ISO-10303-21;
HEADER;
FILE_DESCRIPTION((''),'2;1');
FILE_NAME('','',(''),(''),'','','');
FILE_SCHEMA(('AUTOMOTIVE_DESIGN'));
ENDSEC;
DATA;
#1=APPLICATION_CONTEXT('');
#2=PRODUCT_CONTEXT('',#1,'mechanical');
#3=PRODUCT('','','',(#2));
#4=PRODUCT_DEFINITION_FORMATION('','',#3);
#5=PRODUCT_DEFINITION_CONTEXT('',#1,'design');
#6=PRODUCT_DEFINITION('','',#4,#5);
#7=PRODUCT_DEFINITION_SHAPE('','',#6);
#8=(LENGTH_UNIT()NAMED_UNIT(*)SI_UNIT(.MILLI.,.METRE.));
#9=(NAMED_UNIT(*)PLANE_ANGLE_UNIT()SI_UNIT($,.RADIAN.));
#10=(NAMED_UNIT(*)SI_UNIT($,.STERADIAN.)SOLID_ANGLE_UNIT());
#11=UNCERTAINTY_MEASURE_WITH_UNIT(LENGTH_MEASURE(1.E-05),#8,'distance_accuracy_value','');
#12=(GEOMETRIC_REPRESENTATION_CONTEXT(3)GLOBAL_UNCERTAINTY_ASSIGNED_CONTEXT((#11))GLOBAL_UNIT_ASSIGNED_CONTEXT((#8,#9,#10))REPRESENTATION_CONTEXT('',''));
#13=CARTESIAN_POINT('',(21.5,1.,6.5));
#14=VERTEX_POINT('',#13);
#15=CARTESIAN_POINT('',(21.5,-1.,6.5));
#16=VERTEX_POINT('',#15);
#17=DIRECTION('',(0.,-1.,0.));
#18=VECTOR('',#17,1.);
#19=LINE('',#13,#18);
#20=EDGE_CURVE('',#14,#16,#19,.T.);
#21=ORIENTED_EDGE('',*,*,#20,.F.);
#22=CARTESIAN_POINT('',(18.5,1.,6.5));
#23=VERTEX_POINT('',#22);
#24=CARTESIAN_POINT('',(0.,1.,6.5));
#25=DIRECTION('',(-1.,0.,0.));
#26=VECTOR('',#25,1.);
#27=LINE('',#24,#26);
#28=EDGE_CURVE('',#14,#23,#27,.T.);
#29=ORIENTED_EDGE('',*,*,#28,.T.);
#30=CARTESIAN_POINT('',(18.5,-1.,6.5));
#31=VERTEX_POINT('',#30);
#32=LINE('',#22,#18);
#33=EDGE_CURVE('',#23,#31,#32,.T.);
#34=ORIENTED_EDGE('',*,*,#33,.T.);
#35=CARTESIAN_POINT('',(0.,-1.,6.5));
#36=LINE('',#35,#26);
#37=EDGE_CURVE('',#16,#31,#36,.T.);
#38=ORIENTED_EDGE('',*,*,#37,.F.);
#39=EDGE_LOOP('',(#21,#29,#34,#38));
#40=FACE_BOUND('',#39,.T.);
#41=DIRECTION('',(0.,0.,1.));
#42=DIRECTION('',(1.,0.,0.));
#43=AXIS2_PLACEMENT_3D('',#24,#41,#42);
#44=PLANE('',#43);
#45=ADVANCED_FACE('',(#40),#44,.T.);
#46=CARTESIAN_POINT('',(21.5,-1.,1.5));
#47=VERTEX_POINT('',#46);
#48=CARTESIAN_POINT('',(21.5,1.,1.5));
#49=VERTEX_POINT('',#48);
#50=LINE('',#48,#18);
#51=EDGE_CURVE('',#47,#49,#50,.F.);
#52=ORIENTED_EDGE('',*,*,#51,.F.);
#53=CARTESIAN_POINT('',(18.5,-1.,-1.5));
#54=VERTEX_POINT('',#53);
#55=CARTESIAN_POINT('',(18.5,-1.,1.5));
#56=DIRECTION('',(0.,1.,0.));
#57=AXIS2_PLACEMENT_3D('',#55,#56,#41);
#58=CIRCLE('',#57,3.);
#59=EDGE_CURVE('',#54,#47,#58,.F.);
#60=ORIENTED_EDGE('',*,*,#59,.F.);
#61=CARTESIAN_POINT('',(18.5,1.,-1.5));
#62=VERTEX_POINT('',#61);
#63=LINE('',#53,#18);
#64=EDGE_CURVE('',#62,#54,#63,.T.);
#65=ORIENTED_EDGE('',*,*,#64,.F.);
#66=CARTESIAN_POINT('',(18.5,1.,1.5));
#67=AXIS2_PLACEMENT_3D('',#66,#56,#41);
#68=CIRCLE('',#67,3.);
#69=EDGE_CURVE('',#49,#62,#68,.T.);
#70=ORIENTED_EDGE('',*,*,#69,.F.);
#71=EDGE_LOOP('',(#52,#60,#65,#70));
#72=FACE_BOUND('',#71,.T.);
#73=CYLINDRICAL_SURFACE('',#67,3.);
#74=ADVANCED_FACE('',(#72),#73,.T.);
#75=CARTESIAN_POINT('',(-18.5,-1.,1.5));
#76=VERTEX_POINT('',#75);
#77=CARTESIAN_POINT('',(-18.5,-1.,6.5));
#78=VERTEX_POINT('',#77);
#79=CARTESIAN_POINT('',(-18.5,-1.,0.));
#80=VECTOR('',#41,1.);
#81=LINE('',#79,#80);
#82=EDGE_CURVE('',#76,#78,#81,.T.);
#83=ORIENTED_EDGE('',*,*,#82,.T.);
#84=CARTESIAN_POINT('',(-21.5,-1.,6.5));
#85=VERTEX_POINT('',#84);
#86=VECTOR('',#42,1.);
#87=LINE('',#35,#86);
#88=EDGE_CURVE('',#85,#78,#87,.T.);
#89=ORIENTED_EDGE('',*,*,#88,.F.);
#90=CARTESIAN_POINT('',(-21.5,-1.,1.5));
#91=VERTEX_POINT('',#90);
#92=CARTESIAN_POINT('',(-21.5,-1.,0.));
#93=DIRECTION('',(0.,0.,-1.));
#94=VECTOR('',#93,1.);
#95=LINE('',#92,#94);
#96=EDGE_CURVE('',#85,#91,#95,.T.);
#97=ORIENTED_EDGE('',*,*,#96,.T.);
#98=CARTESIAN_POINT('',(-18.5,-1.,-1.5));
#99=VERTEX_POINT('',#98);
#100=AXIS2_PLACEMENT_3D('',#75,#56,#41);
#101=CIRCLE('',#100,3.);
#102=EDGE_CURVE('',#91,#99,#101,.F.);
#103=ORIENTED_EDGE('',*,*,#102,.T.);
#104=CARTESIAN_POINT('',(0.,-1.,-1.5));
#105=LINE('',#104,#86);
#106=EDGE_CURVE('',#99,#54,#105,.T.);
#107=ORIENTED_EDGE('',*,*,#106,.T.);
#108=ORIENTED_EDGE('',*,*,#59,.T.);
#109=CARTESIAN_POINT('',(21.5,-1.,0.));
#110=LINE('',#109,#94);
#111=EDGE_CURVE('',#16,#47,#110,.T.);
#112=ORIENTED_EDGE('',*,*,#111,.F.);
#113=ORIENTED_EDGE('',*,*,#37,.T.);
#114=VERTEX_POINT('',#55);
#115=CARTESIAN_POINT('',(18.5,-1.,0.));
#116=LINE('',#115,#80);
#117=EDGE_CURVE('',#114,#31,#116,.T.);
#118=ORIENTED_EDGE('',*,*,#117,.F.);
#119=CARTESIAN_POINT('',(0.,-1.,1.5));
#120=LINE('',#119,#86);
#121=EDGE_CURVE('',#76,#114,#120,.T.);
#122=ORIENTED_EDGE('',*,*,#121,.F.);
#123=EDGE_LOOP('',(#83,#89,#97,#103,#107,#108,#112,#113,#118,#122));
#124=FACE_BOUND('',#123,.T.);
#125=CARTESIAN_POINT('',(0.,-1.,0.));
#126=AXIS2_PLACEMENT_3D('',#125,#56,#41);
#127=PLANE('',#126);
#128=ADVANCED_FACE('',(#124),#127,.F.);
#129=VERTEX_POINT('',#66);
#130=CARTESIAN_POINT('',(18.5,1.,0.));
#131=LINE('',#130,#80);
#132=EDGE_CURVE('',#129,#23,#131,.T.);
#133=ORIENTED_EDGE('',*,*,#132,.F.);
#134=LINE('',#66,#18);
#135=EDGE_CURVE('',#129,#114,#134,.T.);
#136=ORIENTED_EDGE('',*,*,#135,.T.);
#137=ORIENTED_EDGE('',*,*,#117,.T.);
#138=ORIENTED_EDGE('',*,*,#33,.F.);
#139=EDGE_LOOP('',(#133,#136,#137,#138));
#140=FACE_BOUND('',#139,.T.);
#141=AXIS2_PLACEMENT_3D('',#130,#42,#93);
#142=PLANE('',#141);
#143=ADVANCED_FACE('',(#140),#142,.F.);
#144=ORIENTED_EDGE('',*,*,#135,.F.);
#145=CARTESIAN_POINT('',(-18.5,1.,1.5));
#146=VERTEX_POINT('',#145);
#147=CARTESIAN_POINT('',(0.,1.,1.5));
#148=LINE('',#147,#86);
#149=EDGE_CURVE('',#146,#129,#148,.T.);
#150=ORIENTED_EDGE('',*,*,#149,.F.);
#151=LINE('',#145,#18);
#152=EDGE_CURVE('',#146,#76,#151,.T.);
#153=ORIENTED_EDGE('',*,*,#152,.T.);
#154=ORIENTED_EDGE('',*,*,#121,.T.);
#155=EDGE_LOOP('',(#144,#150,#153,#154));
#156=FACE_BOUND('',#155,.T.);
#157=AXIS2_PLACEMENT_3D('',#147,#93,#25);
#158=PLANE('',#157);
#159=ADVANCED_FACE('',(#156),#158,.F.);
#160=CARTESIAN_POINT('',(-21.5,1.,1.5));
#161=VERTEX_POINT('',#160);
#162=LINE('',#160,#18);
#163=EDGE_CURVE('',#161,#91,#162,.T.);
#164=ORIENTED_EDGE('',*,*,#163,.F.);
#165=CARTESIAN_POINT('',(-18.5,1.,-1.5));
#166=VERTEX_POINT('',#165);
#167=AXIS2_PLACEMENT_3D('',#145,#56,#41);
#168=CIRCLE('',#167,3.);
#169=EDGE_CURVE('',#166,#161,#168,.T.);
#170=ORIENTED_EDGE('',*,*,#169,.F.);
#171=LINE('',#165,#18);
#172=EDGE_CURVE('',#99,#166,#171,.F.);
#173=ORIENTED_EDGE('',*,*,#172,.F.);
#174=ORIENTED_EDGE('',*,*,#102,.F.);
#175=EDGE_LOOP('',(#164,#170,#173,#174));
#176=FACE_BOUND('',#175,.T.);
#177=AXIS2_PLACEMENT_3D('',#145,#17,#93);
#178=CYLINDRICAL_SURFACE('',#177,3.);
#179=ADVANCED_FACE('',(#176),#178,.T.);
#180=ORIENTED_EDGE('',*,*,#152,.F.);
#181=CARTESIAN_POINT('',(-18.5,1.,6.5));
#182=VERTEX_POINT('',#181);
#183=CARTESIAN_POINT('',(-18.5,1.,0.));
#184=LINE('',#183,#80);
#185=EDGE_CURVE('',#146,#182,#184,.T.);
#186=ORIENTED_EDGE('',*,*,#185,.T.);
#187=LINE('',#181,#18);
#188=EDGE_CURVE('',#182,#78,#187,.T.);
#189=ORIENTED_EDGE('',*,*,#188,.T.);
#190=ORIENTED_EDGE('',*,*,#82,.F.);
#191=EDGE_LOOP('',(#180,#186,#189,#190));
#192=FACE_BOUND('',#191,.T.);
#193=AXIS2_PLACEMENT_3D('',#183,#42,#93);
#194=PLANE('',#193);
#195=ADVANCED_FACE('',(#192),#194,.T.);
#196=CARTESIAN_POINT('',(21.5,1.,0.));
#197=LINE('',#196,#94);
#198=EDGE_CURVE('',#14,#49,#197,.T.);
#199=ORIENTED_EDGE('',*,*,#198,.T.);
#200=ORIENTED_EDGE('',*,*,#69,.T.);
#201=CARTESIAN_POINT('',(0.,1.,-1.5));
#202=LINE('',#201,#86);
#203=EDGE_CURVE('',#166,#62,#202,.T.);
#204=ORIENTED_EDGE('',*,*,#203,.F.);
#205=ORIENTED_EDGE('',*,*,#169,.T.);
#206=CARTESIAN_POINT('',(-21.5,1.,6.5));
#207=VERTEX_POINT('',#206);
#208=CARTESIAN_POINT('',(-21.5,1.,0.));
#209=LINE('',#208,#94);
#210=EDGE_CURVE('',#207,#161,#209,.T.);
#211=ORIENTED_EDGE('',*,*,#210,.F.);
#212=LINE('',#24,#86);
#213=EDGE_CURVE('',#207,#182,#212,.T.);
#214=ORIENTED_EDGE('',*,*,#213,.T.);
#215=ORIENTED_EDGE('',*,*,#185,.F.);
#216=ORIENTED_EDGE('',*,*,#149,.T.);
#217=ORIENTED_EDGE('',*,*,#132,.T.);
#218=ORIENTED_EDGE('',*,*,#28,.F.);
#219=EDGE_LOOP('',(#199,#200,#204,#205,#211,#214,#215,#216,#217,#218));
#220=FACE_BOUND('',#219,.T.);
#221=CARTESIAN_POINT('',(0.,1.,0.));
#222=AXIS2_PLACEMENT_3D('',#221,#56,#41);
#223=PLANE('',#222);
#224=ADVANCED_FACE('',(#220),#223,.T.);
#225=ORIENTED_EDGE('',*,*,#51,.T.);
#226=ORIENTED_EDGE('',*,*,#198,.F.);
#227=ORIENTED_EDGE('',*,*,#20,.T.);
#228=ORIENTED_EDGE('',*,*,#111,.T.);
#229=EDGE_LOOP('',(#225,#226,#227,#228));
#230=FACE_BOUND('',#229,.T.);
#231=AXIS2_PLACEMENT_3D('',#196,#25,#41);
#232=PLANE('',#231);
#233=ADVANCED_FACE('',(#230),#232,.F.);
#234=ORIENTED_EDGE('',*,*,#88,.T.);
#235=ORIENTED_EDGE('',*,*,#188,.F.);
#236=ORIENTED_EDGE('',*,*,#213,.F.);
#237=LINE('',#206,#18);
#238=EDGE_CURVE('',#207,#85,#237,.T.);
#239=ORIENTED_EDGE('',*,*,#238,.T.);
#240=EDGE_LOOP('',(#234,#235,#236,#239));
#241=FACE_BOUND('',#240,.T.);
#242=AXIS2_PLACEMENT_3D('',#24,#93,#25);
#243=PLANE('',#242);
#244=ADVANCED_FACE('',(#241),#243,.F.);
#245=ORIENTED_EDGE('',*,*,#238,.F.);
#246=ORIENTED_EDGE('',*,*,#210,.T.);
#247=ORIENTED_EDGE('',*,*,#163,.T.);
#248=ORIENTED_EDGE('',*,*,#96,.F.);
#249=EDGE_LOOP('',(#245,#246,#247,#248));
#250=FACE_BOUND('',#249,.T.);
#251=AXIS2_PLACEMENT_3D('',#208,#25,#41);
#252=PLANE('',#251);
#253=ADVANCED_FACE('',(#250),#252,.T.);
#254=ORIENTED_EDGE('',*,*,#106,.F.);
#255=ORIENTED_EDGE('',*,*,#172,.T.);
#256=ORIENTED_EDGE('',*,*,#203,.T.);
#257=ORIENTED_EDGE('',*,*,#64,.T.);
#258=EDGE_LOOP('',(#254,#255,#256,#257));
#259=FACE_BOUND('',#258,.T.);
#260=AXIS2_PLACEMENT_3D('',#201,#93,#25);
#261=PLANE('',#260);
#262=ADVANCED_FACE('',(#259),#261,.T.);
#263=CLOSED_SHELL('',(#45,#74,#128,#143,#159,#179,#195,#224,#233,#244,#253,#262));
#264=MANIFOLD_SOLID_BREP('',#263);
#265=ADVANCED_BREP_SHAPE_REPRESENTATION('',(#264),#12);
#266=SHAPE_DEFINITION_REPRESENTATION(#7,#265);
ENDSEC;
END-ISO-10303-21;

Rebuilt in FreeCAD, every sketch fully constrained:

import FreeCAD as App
import Part
import Sketcher
Q = App.Units.Quantity


def edges_at(feature, points):
    """Names of the edges that pass closest to the given points."""
    edges = feature.Shape.Edges
    near = lambda p: min(range(len(edges)), key=lambda i: edges[i].distToShape(Part.Vertex(*p))[0])
    return sorted({f"Edge{near(p) + 1}" for p in points})

doc = App.newDocument("Part")
body = doc.addObject("PartDesign::Body", "Body")

sketch1 = body.newObject("Sketcher::SketchObject", "Sketch")
sketch1.AttachmentSupport = (doc.getObject("XZ_Plane"), [""])
sketch1.MapMode = "FlatFace"
sketch1.addGeometry([
    Part.LineSegment(App.Vector(-21.5, -1.5, 0), App.Vector(-21.5, 6.5, 0)),
    Part.LineSegment(App.Vector(-21.5, 6.5, 0), App.Vector(-18.5, 6.5, 0)),
    Part.LineSegment(App.Vector(-18.5, 6.5, 0), App.Vector(-18.5, 1.5, 0)),
    Part.LineSegment(App.Vector(-18.5, 1.5, 0), App.Vector(18.5, 1.5, 0)),
    Part.LineSegment(App.Vector(18.5, 1.5, 0), App.Vector(18.5, 6.5, 0)),
    Part.LineSegment(App.Vector(18.5, 6.5, 0), App.Vector(21.5, 6.5, 0)),
    Part.LineSegment(App.Vector(21.5, 6.5, 0), App.Vector(21.5, -1.5, 0)),
    Part.LineSegment(App.Vector(21.5, -1.5, 0), App.Vector(-21.5, -1.5, 0)),
], False)
sketch1.addConstraint([
    Sketcher.Constraint("Coincident", 0, 2, 1, 1),
    Sketcher.Constraint("Coincident", 1, 2, 2, 1),
    Sketcher.Constraint("Coincident", 2, 2, 3, 1),
    Sketcher.Constraint("Coincident", 3, 2, 4, 1),
    Sketcher.Constraint("Coincident", 4, 2, 5, 1),
    Sketcher.Constraint("Coincident", 5, 2, 6, 1),
    Sketcher.Constraint("Coincident", 6, 2, 7, 1),
    Sketcher.Constraint("Coincident", 7, 2, 0, 1),
    Sketcher.Constraint("Vertical", 0),
    Sketcher.Constraint("Horizontal", 1),
    Sketcher.Constraint("Vertical", 2),
    Sketcher.Constraint("Horizontal", 3),
    Sketcher.Constraint("Vertical", 4),
    Sketcher.Constraint("Horizontal", 5),
    Sketcher.Constraint("Vertical", 6),
    Sketcher.Constraint("Horizontal", 7),
    Sketcher.Constraint("Symmetric", 1, 2, 4, 2, -2),
    Sketcher.Constraint("Equal", 1, 5),
    Sketcher.Constraint("DistanceX", 1, 1, 1, 2, Q("3 mm")),
    Sketcher.Constraint("DistanceX", 3, 1, 3, 2, Q("37 mm")),
    Sketcher.Constraint("DistanceY", 0, 1, 0, 2, Q("8 mm")),
    Sketcher.Constraint("DistanceY", 2, 2, 2, 1, Q("5 mm")),
    Sketcher.Constraint("DistanceY", -1, 1, 0, 2, Q("6.5 mm")),
])
pad1 = body.newObject("PartDesign::Pad", "Pad")
pad1.Profile = sketch1
pad1.Length = 2
pad1.Midplane = True
doc.recompute()

fillet = body.newObject("PartDesign::Fillet", "Fillet")
fillet.Base = (pad1, edges_at(pad1, [(-21.5, 0, -1.5), (21.5, 0, -1.5)]))
fillet.Radius = 3

doc.recompute()
